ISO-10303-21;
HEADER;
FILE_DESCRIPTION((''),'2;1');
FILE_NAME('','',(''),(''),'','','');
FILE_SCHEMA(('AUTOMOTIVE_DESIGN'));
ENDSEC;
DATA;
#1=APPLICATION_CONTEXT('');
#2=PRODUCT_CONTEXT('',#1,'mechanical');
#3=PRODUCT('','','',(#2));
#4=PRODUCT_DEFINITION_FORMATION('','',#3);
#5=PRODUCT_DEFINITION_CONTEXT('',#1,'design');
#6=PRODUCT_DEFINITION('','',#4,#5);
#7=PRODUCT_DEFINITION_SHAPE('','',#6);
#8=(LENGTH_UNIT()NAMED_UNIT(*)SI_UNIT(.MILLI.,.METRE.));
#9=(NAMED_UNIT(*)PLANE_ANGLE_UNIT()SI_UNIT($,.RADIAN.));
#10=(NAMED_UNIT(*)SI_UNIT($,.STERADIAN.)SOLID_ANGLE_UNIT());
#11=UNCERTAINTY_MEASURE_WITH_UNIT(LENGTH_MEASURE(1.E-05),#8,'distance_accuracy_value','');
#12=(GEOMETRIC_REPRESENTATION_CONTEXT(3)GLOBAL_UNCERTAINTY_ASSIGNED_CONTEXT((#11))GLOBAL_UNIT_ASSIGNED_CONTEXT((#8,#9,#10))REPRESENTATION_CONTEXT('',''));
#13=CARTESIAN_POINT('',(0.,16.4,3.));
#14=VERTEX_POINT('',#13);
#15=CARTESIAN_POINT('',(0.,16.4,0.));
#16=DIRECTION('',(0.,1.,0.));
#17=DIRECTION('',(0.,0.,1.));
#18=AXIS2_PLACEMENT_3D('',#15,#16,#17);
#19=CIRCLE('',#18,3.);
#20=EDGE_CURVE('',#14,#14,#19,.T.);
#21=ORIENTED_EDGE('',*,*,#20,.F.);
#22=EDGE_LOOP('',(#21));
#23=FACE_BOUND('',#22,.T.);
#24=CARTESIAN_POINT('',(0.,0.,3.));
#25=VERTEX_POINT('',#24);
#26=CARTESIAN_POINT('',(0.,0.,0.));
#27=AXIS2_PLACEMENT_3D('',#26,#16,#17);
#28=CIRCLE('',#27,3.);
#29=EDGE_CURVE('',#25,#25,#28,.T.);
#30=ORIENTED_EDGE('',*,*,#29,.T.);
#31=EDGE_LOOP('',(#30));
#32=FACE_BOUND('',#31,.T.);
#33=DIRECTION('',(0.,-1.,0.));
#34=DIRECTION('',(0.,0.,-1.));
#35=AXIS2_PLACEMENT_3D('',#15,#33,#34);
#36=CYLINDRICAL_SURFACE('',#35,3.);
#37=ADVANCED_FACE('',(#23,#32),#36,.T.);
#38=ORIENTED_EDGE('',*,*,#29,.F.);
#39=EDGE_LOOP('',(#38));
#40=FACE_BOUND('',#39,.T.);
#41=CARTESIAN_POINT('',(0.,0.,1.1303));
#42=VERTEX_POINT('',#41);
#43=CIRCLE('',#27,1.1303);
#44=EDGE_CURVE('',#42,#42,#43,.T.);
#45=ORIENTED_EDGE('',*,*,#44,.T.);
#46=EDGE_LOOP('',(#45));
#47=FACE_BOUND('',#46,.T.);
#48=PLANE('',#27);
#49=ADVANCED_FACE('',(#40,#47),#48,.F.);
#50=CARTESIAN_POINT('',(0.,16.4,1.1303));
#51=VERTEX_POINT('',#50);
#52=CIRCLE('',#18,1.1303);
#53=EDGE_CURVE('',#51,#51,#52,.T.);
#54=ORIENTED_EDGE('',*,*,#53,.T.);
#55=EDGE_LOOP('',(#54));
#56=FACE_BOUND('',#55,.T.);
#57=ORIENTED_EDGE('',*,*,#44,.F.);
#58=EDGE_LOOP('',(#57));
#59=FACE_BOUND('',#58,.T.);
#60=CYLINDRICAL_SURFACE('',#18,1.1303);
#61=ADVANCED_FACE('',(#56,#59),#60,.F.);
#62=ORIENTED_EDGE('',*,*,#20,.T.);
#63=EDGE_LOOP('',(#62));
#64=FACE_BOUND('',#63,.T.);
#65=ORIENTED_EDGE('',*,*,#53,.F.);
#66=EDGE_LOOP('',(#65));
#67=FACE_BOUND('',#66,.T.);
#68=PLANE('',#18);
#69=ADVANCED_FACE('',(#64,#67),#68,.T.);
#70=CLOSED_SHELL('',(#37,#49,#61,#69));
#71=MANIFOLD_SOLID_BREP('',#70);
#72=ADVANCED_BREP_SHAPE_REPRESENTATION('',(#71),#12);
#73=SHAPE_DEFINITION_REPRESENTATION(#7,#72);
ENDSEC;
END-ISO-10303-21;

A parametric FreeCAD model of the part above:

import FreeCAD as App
import Part
import Sketcher
from FreeCAD import Vector

doc = App.newDocument("Part")
params = doc.addObject("Spreadsheet::Sheet", "Params")
for row, (alias, value) in enumerate([
    ("sketch1_diameter", "6 mm"),
    ("pad1_length", "16.4 mm"),
    ("hole_diameter", "2.2606 mm"),
], start=1):
    params.set(f"A{row}", alias)
    params.set(f"B{row}", "=" + value)
    params.setAlias(f"B{row}", alias)

body = doc.addObject("PartDesign::Body", "Body")

# Sketch on XZ plane
sketch1 = body.newObject("Sketcher::SketchObject", "Sketch")
sketch1.AttachmentSupport = (doc.getObject("XZ_Plane"), [""])
sketch1.MapMode = "FlatFace"
sketch1.addGeometry(Part.Circle(Vector(0, 0, 0), Vector(0, 0, 1), 3), False)
sketch1.addConstraint([
    Sketcher.Constraint("Coincident", 0, 3, -1, 1),
    Sketcher.Constraint("Diameter", 0, 6.0),
])
sketch1.setExpression("Constraints[1]", "Params.sketch1_diameter")
pad1 = body.newObject("PartDesign::Pad", "Pad")
pad1.Profile = sketch1
pad1.setExpression("Length", "Params.pad1_length")
pad1.Reversed = True

# Sketch on XZ plane
sketch2 = body.newObject("Sketcher::SketchObject", "Sketch001")
sketch2.AttachmentSupport = (doc.getObject("XZ_Plane"), [""])
sketch2.MapMode = "FlatFace"
sketch2.AttachmentOffset = App.Placement(Vector(0, 0, -16.4), App.Rotation())
sketch2.addGeometry(Part.Circle(Vector(0, 0, 0), Vector(0, 0, 1), 1.1), False)
sketch2.addConstraint([
    Sketcher.Constraint("Coincident", 0, 3, -1, 1),
    Sketcher.Constraint("Diameter", 0, 2.2606),
])
doc.recompute()
hole = body.newObject("PartDesign::Hole", "Hole")
hole.Profile = sketch2
hole.ThreadType = "None"
hole.setExpression("Diameter", "Params.hole_diameter")
hole.DepthType = "ThroughAll"
hole.Reversed = True

doc.recompute()
